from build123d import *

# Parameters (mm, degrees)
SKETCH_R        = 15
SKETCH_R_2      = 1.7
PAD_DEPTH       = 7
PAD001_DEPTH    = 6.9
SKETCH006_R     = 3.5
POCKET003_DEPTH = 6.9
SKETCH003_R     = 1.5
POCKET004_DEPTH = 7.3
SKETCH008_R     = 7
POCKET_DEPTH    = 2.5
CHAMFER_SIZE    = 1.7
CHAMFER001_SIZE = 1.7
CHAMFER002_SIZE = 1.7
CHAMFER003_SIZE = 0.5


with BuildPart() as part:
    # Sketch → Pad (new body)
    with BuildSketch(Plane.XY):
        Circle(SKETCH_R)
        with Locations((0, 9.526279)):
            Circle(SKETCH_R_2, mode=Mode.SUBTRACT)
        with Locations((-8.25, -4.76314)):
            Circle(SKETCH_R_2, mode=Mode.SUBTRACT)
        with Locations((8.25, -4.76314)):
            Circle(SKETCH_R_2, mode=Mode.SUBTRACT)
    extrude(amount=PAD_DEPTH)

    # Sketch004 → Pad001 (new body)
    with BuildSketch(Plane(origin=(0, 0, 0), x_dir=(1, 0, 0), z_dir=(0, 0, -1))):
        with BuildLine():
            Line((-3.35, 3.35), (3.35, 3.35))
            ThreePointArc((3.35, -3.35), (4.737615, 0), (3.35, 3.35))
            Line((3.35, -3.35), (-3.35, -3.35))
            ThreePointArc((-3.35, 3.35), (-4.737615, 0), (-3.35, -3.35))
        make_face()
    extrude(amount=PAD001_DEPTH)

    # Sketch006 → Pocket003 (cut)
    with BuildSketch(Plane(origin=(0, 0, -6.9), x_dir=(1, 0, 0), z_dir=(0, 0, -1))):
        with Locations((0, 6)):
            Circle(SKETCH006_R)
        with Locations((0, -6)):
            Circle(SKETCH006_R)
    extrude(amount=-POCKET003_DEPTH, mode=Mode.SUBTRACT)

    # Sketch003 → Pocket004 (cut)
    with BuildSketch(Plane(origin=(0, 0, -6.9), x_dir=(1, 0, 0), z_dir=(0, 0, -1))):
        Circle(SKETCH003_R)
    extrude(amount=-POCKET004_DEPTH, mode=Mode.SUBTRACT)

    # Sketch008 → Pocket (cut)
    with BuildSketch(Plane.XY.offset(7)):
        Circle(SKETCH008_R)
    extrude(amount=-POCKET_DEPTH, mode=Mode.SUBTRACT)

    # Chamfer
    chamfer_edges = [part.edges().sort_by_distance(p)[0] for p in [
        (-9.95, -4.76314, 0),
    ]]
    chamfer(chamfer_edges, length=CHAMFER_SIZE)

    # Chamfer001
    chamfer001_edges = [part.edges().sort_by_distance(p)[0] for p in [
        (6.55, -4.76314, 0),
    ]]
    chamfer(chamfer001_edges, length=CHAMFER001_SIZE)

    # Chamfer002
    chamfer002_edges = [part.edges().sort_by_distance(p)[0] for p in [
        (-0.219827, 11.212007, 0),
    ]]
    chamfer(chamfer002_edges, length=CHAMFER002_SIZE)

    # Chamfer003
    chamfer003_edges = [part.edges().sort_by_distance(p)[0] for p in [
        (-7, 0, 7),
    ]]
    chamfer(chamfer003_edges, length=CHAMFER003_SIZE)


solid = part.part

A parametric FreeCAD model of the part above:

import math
import FreeCAD as App
import Part
import Sketcher


def edges_at(feature, points):
    """Names of the edges that pass closest to the given points."""
    edges = feature.Shape.Edges
    near = lambda p: min(range(len(edges)), key=lambda i: edges[i].distToShape(Part.Vertex(*p))[0])
    return sorted({f"Edge{near(p) + 1}" for p in points})

doc = App.newDocument("Part")
body = doc.addObject("PartDesign::Body", "Body")

# Sketch on XY plane
sketch1 = body.newObject("Sketcher::SketchObject", "Sketch")
sketch1.AttachmentSupport = (doc.getObject("XY_Plane"), [""])
sketch1.MapMode = "FlatFace"
sketch1.addGeometry([
    Part.Circle(App.Vector(0, 0, 0), App.Vector(0, 0, 1), 15),
    Part.Circle(App.Vector(-8.2, -4.8, 0), App.Vector(0, 0, 1), 1.7),
    Part.Circle(App.Vector(8.2, -4.8, 0), App.Vector(0, 0, 1), 1.7),
    Part.Circle(App.Vector(0, 9.5, 0), App.Vector(0, 0, 1), 1.7),
], False)
sketch1.addConstraint([
    Sketcher.Constraint("Coincident", 0, 3, -1, 1),
    Sketcher.Constraint("Equal", 1, 2),
    Sketcher.Constraint("Equal", 2, 3),
    Sketcher.Constraint("Symmetric", 1, 3, 2, 3, -2),
    Sketcher.Constraint("PointOnObject", 3, 3, -2),
    Sketcher.Constraint("Diameter", 0, 30.0),
    Sketcher.Constraint("Diameter", 1, 3.4),
    Sketcher.Constraint("DistanceX", 1, 3, 2, 3, 16.5),
    Sketcher.Constraint("DistanceY", 1, 3, -1, 1, 4.76314),
    Sketcher.Constraint("DistanceY", -1, 1, 3, 3, 9.526279),
])
pad1 = body.newObject("PartDesign::Pad", "Pad")
pad1.Profile = sketch1
pad1.Length = 7

# Sketch on XY plane
sketch2 = body.newObject("Sketcher::SketchObject", "Sketch001")
sketch2.AttachmentSupport = (doc.getObject("XY_Plane"), [""])
sketch2.MapMode = "FlatFace"
sketch2.addGeometry([
    Part.LineSegment(App.Vector(3.4, -3.4, 0), App.Vector(-3.4, -3.4, 0)),
    Part.ArcOfCircle(Part.Circle(App.Vector(0, 0, 0), App.Vector(0, 0, 1), 4.7), math.radians(135), math.radians(225)),
    Part.LineSegment(App.Vector(-3.4, 3.4, 0), App.Vector(3.4, 3.4, 0)),
    Part.ArcOfCircle(Part.Circle(App.Vector(0, 0, 0), App.Vector(0, 0, 1), 4.7), math.radians(-45), math.radians(45)),
], False)
sketch2.addConstraint([
    Sketcher.Constraint("Coincident", 0, 2, 1, 2),
    Sketcher.Constraint("Coincident", 1, 1, 2, 1),
    Sketcher.Constraint("Coincident", 2, 2, 3, 2),
    Sketcher.Constraint("Coincident", 3, 1, 0, 1),
    Sketcher.Constraint("Horizontal", 0),
    Sketcher.Constraint("Horizontal", 2),
    Sketcher.Constraint("Coincident", 1, 3, -1, 1),
    Sketcher.Constraint("Coincident", 3, 3, -1, 1),
    Sketcher.Constraint("Equal", 1, 3),
    Sketcher.Constraint("Vertical", 0, 2, 1, 1),
    Sketcher.Constraint("DistanceX", 0, 2, 0, 1, 6.7),
    Sketcher.Constraint("DistanceY", 0, 2, 1, 1, 6.7),
])
pad2 = body.newObject("PartDesign::Pad", "Pad001")
pad2.Profile = sketch2
pad2.Length = 6.9
pad2.Reversed = True

# Sketch on XY plane
sketch3 = body.newObject("Sketcher::SketchObject", "Sketch002")
sketch3.AttachmentSupport = (doc.getObject("XY_Plane"), [""])
sketch3.MapMode = "FlatFace"
sketch3.AttachmentOffset = App.Placement(App.Vector(0, 0, -6.9), App.Rotation())
sketch3.addGeometry([
    Part.Circle(App.Vector(0, -6, 0), App.Vector(0, 0, 1), 3.5),
    Part.Circle(App.Vector(0, 6, 0), App.Vector(0, 0, 1), 3.5),
], False)
sketch3.addConstraint([
    Sketcher.Constraint("Equal", 0, 1),
    Sketcher.Constraint("Symmetric", 0, 3, 1, 3, -1, 1),
    Sketcher.Constraint("PointOnObject", 0, 3, -2),
    Sketcher.Constraint("Diameter", 0, 7.0),
    Sketcher.Constraint("DistanceY", 0, 3, -1, 1, 6.0),
])
pocket1 = body.newObject("PartDesign::Pocket", "Pocket")
pocket1.Profile = sketch3
pocket1.Length = 6.9
pocket1.Reversed = True

# Sketch on XY plane
sketch4 = body.newObject("Sketcher::SketchObject", "Sketch003")
sketch4.AttachmentSupport = (doc.getObject("XY_Plane"), [""])
sketch4.MapMode = "FlatFace"
sketch4.AttachmentOffset = App.Placement(App.Vector(0, 0, -6.9), App.Rotation())
sketch4.addGeometry(Part.Circle(App.Vector(0, 0, 0), App.Vector(0, 0, 1), 1.5), False)
sketch4.addConstraint([
    Sketcher.Constraint("Coincident", 0, 3, -1, 1),
    Sketcher.Constraint("Diameter", 0, 3.0),
])
pocket2 = body.newObject("PartDesign::Pocket", "Pocket001")
pocket2.Profile = sketch4
pocket2.Length = 7.3
pocket2.Reversed = True

# Sketch on XY plane
sketch5 = body.newObject("Sketcher::SketchObject", "Sketch004")
sketch5.AttachmentSupport = (doc.getObject("XY_Plane"), [""])
sketch5.MapMode = "FlatFace"
sketch5.AttachmentOffset = App.Placement(App.Vector(0, 0, 7), App.Rotation())
sketch5.addGeometry(Part.Circle(App.Vector(0, 0, 0), App.Vector(0, 0, 1), 7), False)
sketch5.addConstraint([
    Sketcher.Constraint("Coincident", 0, 3, -1, 1),
    Sketcher.Constraint("Diameter", 0, 14.0),
])
pocket3 = body.newObject("PartDesign::Pocket", "Pocket002")
pocket3.Profile = sketch5
pocket3.Length = 2.5
doc.recompute()

chamfer = body.newObject("PartDesign::Chamfer", "Chamfer")
chamfer.Base = (pocket3, edges_at(pocket3, [(-9.95, -4.763, 0)]))
chamfer.Size = 1.7
doc.recompute()

chamfer2 = body.newObject("PartDesign::Chamfer", "Chamfer001")
chamfer2.Base = (chamfer, edges_at(chamfer, [(6.55, -4.763, 0)]))
chamfer2.Size = 1.7
doc.recompute()

chamfer3 = body.newObject("PartDesign::Chamfer", "Chamfer002")
chamfer3.Base = (chamfer2, edges_at(chamfer2, [(-1.7, 9.526, 0)]))
chamfer3.Size = 1.7
doc.recompute()

chamfer4 = body.newObject("PartDesign::Chamfer", "Chamfer003")
chamfer4.Base = (chamfer3, edges_at(chamfer3, [(-7, 0, 7)]))
chamfer4.Size = 0.5

doc.recompute()
